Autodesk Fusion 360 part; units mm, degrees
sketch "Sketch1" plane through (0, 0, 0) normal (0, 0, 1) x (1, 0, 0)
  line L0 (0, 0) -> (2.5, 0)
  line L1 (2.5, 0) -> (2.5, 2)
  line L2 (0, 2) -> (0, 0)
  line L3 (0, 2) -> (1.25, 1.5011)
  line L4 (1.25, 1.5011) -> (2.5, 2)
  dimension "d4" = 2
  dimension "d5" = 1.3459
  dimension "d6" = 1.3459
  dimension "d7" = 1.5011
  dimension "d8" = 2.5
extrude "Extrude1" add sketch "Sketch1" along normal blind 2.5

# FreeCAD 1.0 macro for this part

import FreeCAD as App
import Part
import Sketcher
from FreeCAD import Vector

doc = App.newDocument("Part")
body = doc.addObject("PartDesign::Body", "Body")

# Sketch on XY plane
sketch1 = body.newObject("Sketcher::SketchObject", "Sketch")
sketch1.AttachmentSupport = (doc.getObject("XY_Plane"), [""])
sketch1.MapMode = "FlatFace"
sketch1.addGeometry(Part.LineSegment(Vector(0, 2, 0), Vector(0, 0, 0)), False)
sketch1.addGeometry(Part.LineSegment(Vector(0, 0, 0), Vector(2.5, 0, 0)), False)
sketch1.addGeometry(Part.LineSegment(Vector(2.5, 0, 0), Vector(2.5, 2, 0)), False)
sketch1.addGeometry(Part.LineSegment(Vector(2.5, 2, 0), Vector(1.2, 1.5, 0)), False)
sketch1.addGeometry(Part.LineSegment(Vector(1.2, 1.5, 0), Vector(0, 2, 0)), False)
sketch1.addConstraint(Sketcher.Constraint("Coincident", 0, 2, 1, 1))
sketch1.addConstraint(Sketcher.Constraint("Coincident", 1, 2, 2, 1))
sketch1.addConstraint(Sketcher.Constraint("Coincident", 2, 2, 3, 1))
sketch1.addConstraint(Sketcher.Constraint("Coincident", 3, 2, 4, 1))
sketch1.addConstraint(Sketcher.Constraint("Coincident", 4, 2, 0, 1))
sketch1.addConstraint(Sketcher.Constraint("Vertical", 0))
sketch1.addConstraint(Sketcher.Constraint("Horizontal", 1))
sketch1.addConstraint(Sketcher.Constraint("Vertical", 2))
sketch1.addConstraint(Sketcher.Constraint("Coincident", 0, 2, -1, 1))
sketch1.addConstraint(Sketcher.Constraint("Horizontal", 2, 2, 4, 2))
sketch1.addConstraint(Sketcher.Constraint("Equal", 3, 4))
sketch1.addConstraint(Sketcher.Constraint("DistanceY", 0, 2, 0, 1, 2.0))
sketch1.addConstraint(Sketcher.Constraint("DistanceX", 1, 1, 1, 2, 2.5))
sketch1.addConstraint(Sketcher.Constraint("Distance", 3, 1.346))
pad1 = body.newObject("PartDesign::Pad", "Pad")
pad1.Profile = sketch1
pad1.Length = 2.5

doc.recompute()
